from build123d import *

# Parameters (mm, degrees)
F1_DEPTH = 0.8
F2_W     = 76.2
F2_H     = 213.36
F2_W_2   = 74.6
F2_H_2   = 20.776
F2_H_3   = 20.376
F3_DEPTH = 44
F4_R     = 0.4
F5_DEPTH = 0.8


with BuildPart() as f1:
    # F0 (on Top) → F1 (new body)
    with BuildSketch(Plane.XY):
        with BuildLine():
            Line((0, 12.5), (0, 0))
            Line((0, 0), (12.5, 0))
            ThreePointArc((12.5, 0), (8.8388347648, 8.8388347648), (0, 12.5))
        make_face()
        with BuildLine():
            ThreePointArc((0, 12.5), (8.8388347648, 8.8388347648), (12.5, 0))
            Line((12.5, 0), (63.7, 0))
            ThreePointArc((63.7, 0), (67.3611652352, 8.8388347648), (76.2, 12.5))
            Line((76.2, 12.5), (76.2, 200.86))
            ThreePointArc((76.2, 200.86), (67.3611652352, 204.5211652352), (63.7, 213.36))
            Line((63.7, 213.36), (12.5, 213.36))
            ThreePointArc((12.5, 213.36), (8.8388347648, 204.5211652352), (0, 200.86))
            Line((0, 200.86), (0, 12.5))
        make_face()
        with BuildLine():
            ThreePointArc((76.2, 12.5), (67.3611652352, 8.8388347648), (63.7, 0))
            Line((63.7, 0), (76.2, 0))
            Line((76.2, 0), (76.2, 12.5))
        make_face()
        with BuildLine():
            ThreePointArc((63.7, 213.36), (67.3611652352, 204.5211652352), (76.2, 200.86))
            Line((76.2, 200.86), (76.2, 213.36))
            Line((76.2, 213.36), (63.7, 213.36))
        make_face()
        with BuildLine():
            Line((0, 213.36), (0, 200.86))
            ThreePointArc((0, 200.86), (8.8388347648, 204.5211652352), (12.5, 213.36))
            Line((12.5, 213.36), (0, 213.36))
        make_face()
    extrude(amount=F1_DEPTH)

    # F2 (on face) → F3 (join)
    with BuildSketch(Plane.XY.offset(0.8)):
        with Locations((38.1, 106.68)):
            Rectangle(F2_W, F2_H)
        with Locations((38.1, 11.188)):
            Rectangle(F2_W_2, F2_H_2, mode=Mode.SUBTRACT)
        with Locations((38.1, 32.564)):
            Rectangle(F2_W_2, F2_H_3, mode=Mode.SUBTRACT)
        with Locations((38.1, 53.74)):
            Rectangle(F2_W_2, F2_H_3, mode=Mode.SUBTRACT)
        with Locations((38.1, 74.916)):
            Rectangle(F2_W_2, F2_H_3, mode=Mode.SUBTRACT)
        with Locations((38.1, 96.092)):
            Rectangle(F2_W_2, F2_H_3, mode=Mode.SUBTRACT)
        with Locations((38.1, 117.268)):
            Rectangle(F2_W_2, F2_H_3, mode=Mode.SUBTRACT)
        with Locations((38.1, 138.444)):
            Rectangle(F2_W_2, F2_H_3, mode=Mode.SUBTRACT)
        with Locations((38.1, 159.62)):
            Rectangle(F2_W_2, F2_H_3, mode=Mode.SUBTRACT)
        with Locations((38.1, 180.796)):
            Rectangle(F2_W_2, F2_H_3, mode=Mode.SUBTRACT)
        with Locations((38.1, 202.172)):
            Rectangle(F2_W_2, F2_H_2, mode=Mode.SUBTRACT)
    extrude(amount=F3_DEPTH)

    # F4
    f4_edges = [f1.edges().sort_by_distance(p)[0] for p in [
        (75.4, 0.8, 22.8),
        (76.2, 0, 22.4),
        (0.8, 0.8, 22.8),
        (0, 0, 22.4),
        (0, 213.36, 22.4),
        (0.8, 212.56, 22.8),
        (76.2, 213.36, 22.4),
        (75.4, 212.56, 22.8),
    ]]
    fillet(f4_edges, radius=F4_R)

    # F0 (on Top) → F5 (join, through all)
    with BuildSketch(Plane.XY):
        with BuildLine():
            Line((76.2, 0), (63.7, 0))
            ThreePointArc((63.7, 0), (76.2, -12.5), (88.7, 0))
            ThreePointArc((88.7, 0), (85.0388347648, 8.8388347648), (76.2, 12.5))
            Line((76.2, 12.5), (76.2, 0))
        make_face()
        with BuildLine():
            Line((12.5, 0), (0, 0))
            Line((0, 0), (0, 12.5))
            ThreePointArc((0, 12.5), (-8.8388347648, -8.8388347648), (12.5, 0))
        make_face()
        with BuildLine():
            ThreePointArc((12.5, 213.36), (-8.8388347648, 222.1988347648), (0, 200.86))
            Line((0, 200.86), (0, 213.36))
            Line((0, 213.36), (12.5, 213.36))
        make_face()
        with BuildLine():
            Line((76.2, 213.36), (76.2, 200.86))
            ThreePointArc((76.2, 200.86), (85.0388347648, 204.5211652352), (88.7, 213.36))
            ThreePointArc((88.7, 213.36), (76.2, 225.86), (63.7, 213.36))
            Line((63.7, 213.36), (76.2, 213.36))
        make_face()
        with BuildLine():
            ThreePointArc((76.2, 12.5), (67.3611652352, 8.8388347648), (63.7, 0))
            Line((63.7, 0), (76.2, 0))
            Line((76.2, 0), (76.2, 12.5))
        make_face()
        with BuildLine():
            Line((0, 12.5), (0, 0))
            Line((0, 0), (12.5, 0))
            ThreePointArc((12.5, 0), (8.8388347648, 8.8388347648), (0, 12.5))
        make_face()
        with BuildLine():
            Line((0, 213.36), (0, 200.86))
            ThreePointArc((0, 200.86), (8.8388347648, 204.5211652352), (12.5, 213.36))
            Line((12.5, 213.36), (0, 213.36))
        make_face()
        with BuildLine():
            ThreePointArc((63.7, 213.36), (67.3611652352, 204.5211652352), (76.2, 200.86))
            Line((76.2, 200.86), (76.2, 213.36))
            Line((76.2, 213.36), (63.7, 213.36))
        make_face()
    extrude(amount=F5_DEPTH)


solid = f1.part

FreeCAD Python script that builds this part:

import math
import FreeCAD as App
import Part
import Sketcher
Q = App.Units.Quantity


def edges_at(feature, points):
    """Names of the edges that pass closest to the given points."""
    edges = feature.Shape.Edges
    near = lambda p: min(range(len(edges)), key=lambda i: edges[i].distToShape(Part.Vertex(*p))[0])
    return sorted({f"Edge{near(p) + 1}" for p in points})


def add_polygon(sketch, points):
    """Adds a closed chain of lines whose ends are joined by coincident constraints."""
    first, n = sketch.GeometryCount, len(points)
    for a, b in zip(points, points[1:] + points[:1]):
        sketch.addGeometry(Part.LineSegment(App.Vector(*a, 0), App.Vector(*b, 0)), False)
    for i in range(n):
        sketch.addConstraint(Sketcher.Constraint("Coincident", first + i, 2, first + (i + 1) % n, 1))

doc = App.newDocument("Part")
body = doc.addObject("PartDesign::Body", "Body")

# Sketch on XY plane
sketch1 = doc.addObject("Sketcher::SketchObject", "Sketch")
body.addObject(sketch1)
sketch1.AttachmentSupport = (doc.XY_Plane, [""])
sketch1.MapMode = "FlatFace"
add_polygon(sketch1, [(0, 0), (76.2, 0), (76.2, 213.36), (0, 213.36)])  # lines 0-3
sketch1.addConstraint([
    Sketcher.Constraint("Horizontal", 0),
    Sketcher.Constraint("Vertical", 1),
    Sketcher.Constraint("Horizontal", 2),
    Sketcher.Constraint("Vertical", 3),
    Sketcher.Constraint("Coincident", 3, 2, -1, 1),
    Sketcher.Constraint("DistanceX", 0, 1, 0, 2, Q("76.2 mm")),
    Sketcher.Constraint("DistanceY", 1, 1, 1, 2, Q("213.36 mm")),
])
pad1 = doc.addObject("PartDesign::Pad", "Pad")
body.addObject(pad1)
pad1.Profile = sketch1
pad1.Length = 0.8

# Sketch on XY plane
sketch2 = doc.addObject("Sketcher::SketchObject", "Sketch001")
body.addObject(sketch2)
sketch2.AttachmentSupport = (doc.XY_Plane, [""])
sketch2.MapMode = "FlatFace"
sketch2.AttachmentOffset = App.Placement(App.Vector(0, 0, 0.8), App.Rotation())
add_polygon(sketch2, [(0, 213.36), (0, 0), (76.2, 0), (76.2, 213.36)])  # lines 0-3
add_polygon(sketch2, [(75.4, 0.8), (0.8, 0.8), (0.8, 21.576), (75.4, 21.576)])  # lines 4-7
add_polygon(sketch2, [(75.4, 22.376), (0.8, 22.376), (0.8, 42.752), (75.4, 42.752)])  # lines 8-11
add_polygon(sketch2, [(75.4, 43.552), (0.8, 43.552), (0.8, 63.928), (75.4, 63.928)])  # lines 12-15
add_polygon(sketch2, [(75.4, 64.728), (0.8, 64.728), (0.8, 85.104), (75.4, 85.104)])  # lines 16-19
add_polygon(sketch2, [(75.4, 85.904), (0.8, 85.904), (0.8, 106.28), (75.4, 106.28)])  # lines 20-23
add_polygon(sketch2, [(75.4, 107.08), (0.8, 107.08), (0.8, 127.456), (75.4, 127.456)])  # lines 24-27
add_polygon(sketch2, [(75.4, 128.256), (0.8, 128.256), (0.8, 148.632), (75.4, 148.632)])  # lines 28-31
add_polygon(sketch2, [(75.4, 149.432), (0.8, 149.432), (0.8, 169.808), (75.4, 169.808)])  # lines 32-35
add_polygon(sketch2, [(75.4, 170.608), (0.8, 170.608), (0.8, 190.984), (75.4, 190.984)])  # lines 36-39
add_polygon(sketch2, [(75.4, 191.784), (0.8, 191.784), (0.8, 212.56), (75.4, 212.56)])  # lines 40-43
sketch2.addConstraint([
    Sketcher.Constraint("Vertical", 0),
    Sketcher.Constraint("Horizontal", 1),
    Sketcher.Constraint("Vertical", 2),
    Sketcher.Constraint("Horizontal", 3),
    Sketcher.Constraint("Horizontal", 4),
    Sketcher.Constraint("Vertical", 5),
    Sketcher.Constraint("Horizontal", 6),
    Sketcher.Constraint("Vertical", 7),
    Sketcher.Constraint("Horizontal", 8),
    Sketcher.Constraint("Vertical", 9),
    Sketcher.Constraint("Horizontal", 10),
    Sketcher.Constraint("Vertical", 11),
    Sketcher.Constraint("Horizontal", 12),
    Sketcher.Constraint("Vertical", 13),
    Sketcher.Constraint("Horizontal", 14),
    Sketcher.Constraint("Vertical", 15),
    Sketcher.Constraint("Horizontal", 16),
    Sketcher.Constraint("Vertical", 17),
    Sketcher.Constraint("Horizontal", 18),
    Sketcher.Constraint("Vertical", 19),
    Sketcher.Constraint("Horizontal", 20),
    Sketcher.Constraint("Vertical", 21),
    Sketcher.Constraint("Horizontal", 22),
    Sketcher.Constraint("Vertical", 23),
    Sketcher.Constraint("Horizontal", 24),
    Sketcher.Constraint("Vertical", 25),
    Sketcher.Constraint("Horizontal", 26),
    Sketcher.Constraint("Vertical", 27),
    Sketcher.Constraint("Horizontal", 28),
    Sketcher.Constraint("Vertical", 29),
    Sketcher.Constraint("Horizontal", 30),
    Sketcher.Constraint("Vertical", 31),
    Sketcher.Constraint("Horizontal", 32),
    Sketcher.Constraint("Vertical", 33),
    Sketcher.Constraint("Horizontal", 34),
    Sketcher.Constraint("Vertical", 35),
    Sketcher.Constraint("Horizontal", 36),
    Sketcher.Constraint("Vertical", 37),
    Sketcher.Constraint("Horizontal", 38),
    Sketcher.Constraint("Vertical", 39),
    Sketcher.Constraint("Horizontal", 40),
    Sketcher.Constraint("Vertical", 41),
    Sketcher.Constraint("Horizontal", 42),
    Sketcher.Constraint("Vertical", 43),
    Sketcher.Constraint("Coincident", 0, 2, -1, 1),
    Sketcher.Constraint("Vertical", 5, 2, 8, 2),
    Sketcher.Constraint("Vertical", 7, 2, 10, 2),
    Sketcher.Constraint("Vertical", 9, 2, 12, 2),
    Sketcher.Constraint("Vertical", 11, 2, 14, 2),
    Sketcher.Constraint("Vertical", 13, 2, 16, 2),
    Sketcher.Constraint("Vertical", 15, 2, 18, 2),
    Sketcher.Constraint("Vertical", 17, 2, 20, 2),
    Sketcher.Constraint("Vertical", 19, 2, 22, 2),
    Sketcher.Constraint("Vertical", 21, 2, 24, 2),
    Sketcher.Constraint("Vertical", 23, 2, 26, 2),
    Sketcher.Constraint("Vertical", 25, 2, 28, 2),
    Sketcher.Constraint("Vertical", 27, 2, 30, 2),
    Sketcher.Constraint("Vertical", 29, 2, 32, 2),
    Sketcher.Constraint("Vertical", 31, 2, 34, 2),
    Sketcher.Constraint("Vertical", 33, 2, 36, 2),
    Sketcher.Constraint("Vertical", 35, 2, 38, 2),
    Sketcher.Constraint("Vertical", 37, 2, 40, 2),
    Sketcher.Constraint("Vertical", 39, 2, 42, 2),
    Sketcher.Constraint("Equal", 11, 13),
    Sketcher.Constraint("Equal", 15, 17),
    Sketcher.Constraint("Equal", 19, 21),
    Sketcher.Constraint("Equal", 23, 25),
    Sketcher.Constraint("Equal", 27, 29),
    Sketcher.Constraint("Equal", 31, 33),
    Sketcher.Constraint("Equal", 35, 37),
    Sketcher.Constraint("Equal", 7, 41),
    Sketcher.Constraint("DistanceX", 1, 1, 1, 2, Q("76.2 mm")),
    Sketcher.Constraint("DistanceX", 4, 2, 4, 1, Q("74.6 mm")),
    Sketcher.Constraint("DistanceY", 0, 2, 0, 1, Q("213.36 mm")),
    Sketcher.Constraint("DistanceX", -1, 1, 4, 2, Q("0.8 mm")),
    Sketcher.Constraint("DistanceY", -1, 1, 4, 2, Q("0.8 mm")),
    Sketcher.Constraint("DistanceY", 5, 2, 8, 2, Q("0.8 mm")),
    Sketcher.Constraint("DistanceY", 9, 2, 12, 2, Q("0.8 mm")),
    Sketcher.Constraint("DistanceY", 13, 2, 16, 2, Q("0.8 mm")),
    Sketcher.Constraint("DistanceY", 17, 2, 20, 2, Q("0.8 mm")),
    Sketcher.Constraint("DistanceY", 21, 2, 24, 2, Q("0.8 mm")),
    Sketcher.Constraint("DistanceY", 25, 2, 28, 2, Q("0.8 mm")),
    Sketcher.Constraint("DistanceY", 29, 2, 32, 2, Q("0.8 mm")),
    Sketcher.Constraint("DistanceY", 33, 2, 36, 2, Q("0.8 mm")),
    Sketcher.Constraint("DistanceY", 37, 2, 40, 2, Q("0.8 mm")),
    Sketcher.Constraint("DistanceY", 41, 2, 3, 2, Q("0.8 mm")),
    Sketcher.Constraint("DistanceY", 5, 1, 5, 2, Q("20.776 mm")),
])
pad2 = doc.addObject("PartDesign::Pad", "Pad001")
body.addObject(pad2)
pad2.Profile = sketch2
pad2.Length = 44
doc.recompute()

fillet = doc.addObject("PartDesign::Fillet", "Fillet")
body.addObject(fillet)
fillet.Base = (pad2, edges_at(pad2, [
    (75.4, 0.8, 22.8),
    (76.2, 0, 22.4),
    (0.8, 0.8, 22.8),
    (0, 0, 22.4),
    (0, 213.36, 22.4),
    (0.8, 212.56, 22.8),
    (76.2, 213.36, 22.4),
    (75.4, 212.56, 22.8),
]))
fillet.Radius = 0.4

# Sketch on XY plane
sketch3 = doc.addObject("Sketcher::SketchObject", "Sketch002")
body.addObject(sketch3)
sketch3.AttachmentSupport = (doc.XY_Plane, [""])
sketch3.MapMode = "FlatFace"
sketch3.addGeometry([
    Part.ArcOfCircle(Part.Circle(App.Vector(76.2, 0, 0), App.Vector(0, 0, 1), 12.5), math.radians(180), math.radians(360)),  # 0
    Part.ArcOfCircle(Part.Circle(App.Vector(76.2, 0, 0), App.Vector(0, 0, 1), 12.5), math.radians(0), math.radians(90)),  # 1
    Part.ArcOfCircle(Part.Circle(App.Vector(76.2, 0, 0), App.Vector(0, 0, 1), 12.5), math.radians(90), math.radians(180)),  # 2
    Part.ArcOfCircle(Part.Circle(App.Vector(0, 0, 0), App.Vector(0, 0, 1), 12.5), math.radians(90), math.radians(360)),  # 3
    Part.ArcOfCircle(Part.Circle(App.Vector(0, 0, 0), App.Vector(0, 0, 1), 12.5), math.radians(0), math.radians(90)),  # 4
    Part.ArcOfCircle(Part.Circle(App.Vector(0, 213.36, 0), App.Vector(0, 0, 1), 12.5), math.radians(0), math.radians(270)),  # 5
    Part.ArcOfCircle(Part.Circle(App.Vector(0, 213.36, 0), App.Vector(0, 0, 1), 12.5), math.radians(-90), math.radians(0)),  # 6
    Part.ArcOfCircle(Part.Circle(App.Vector(76.2, 213.36, 0), App.Vector(0, 0, 1), 12.5), math.radians(-90), math.radians(0)),  # 7
    Part.ArcOfCircle(Part.Circle(App.Vector(76.2, 213.36, 0), App.Vector(0, 0, 1), 12.5), math.radians(0), math.radians(180)),  # 8
    Part.ArcOfCircle(Part.Circle(App.Vector(76.2, 213.36, 0), App.Vector(0, 0, 1), 12.5), math.radians(180), math.radians(270)),  # 9
], False)
sketch3.addConstraint([
    Sketcher.Constraint("Tangent", 0, 2, 1, 1),
    Sketcher.Constraint("Tangent", 1, 2, 2, 1),
    Sketcher.Constraint("Tangent", 2, 2, 0, 1),
    Sketcher.Constraint("Tangent", 3, 1, 4, 2),
    Sketcher.Constraint("Coincident", 4, 1, 3, 2),
    Sketcher.Constraint("Tangent", 5, 1, 6, 2),
    Sketcher.Constraint("Coincident", 6, 1, 5, 2),
    Sketcher.Constraint("Tangent", 7, 2, 8, 1),
    Sketcher.Constraint("Tangent", 8, 2, 9, 1),
    Sketcher.Constraint("Tangent", 9, 2, 7, 1),
    Sketcher.Constraint("Coincident", 3, 3, -1, 1),
    Sketcher.Constraint("Equal", 2, 3),
    Sketcher.Constraint("Equal", 4, 5),
    Sketcher.Constraint("Equal", 6, 7),
    Sketcher.Constraint("PointOnObject", 0, 3, -1),
    Sketcher.Constraint("PointOnObject", 5, 3, -2),
    Sketcher.Constraint("PointOnObject", 0, 2, -1),
    Sketcher.Constraint("PointOnObject", 2, 2, -1),
    Sketcher.Constraint("PointOnObject", 3, 1, -2),
    Sketcher.Constraint("PointOnObject", 4, 1, -1),
    Sketcher.Constraint("PointOnObject", 6, 1, -2),
    Sketcher.Constraint("Horizontal", 6, 3, 7, 3),
    Sketcher.Constraint("Horizontal", 9, 3, 5, 1),
    Sketcher.Constraint("Horizontal", 5, 1, 7, 2),
    Sketcher.Constraint("Horizontal", 7, 2, 8, 2),
    Sketcher.Constraint("Vertical", 2, 3, 7, 3),
    Sketcher.Constraint("Vertical", 9, 3, 1, 2),
    Sketcher.Constraint("Vertical", 1, 2, 9, 2),
    Sketcher.Constraint("Radius", 0, Q("12.5 mm")),
    Sketcher.Constraint("DistanceX", -1, 1, 0, 3, Q("76.2 mm")),
    Sketcher.Constraint("DistanceY", -1, 1, 5, 3, Q("213.36 mm")),
])
pad3 = doc.addObject("PartDesign::Pad", "Pad002")
body.addObject(pad3)
pad3.Profile = sketch3
pad3.Length = 0.8

doc.recompute()
